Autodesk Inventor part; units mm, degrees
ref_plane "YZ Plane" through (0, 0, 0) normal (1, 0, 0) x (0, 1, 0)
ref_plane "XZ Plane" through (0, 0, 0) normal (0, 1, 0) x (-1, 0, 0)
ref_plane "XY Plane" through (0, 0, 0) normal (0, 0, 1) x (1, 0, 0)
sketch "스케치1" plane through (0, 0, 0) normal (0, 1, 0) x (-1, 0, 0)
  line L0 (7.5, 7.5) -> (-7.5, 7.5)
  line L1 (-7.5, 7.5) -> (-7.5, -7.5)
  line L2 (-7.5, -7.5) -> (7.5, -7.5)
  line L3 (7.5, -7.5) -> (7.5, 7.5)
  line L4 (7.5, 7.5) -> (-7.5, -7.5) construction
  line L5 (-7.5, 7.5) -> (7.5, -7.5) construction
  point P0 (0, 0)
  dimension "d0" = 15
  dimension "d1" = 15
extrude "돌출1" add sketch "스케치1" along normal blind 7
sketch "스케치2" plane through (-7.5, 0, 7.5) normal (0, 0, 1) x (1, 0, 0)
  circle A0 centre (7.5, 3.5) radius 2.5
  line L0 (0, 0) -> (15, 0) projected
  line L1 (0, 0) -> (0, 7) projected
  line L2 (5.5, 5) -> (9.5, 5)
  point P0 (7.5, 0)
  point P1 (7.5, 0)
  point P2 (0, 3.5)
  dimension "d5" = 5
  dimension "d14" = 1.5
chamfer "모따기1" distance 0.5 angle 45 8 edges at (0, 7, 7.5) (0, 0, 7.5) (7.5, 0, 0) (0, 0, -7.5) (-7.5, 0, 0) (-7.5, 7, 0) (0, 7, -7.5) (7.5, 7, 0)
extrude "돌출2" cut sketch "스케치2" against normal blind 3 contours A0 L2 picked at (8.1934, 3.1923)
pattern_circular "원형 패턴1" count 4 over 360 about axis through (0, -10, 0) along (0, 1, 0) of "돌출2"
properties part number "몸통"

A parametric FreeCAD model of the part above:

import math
import FreeCAD as App
import Part
import Sketcher
Q = App.Units.Quantity


def edges_at(feature, points):
    """Names of the edges that pass closest to the given points."""
    edges = feature.Shape.Edges
    near = lambda p: min(range(len(edges)), key=lambda i: edges[i].distToShape(Part.Vertex(*p))[0])
    return sorted({f"Edge{near(p) + 1}" for p in points})


def add_polygon(sketch, points):
    """Adds a closed chain of lines whose ends are joined by coincident constraints."""
    first, n = sketch.GeometryCount, len(points)
    for a, b in zip(points, points[1:] + points[:1]):
        sketch.addGeometry(Part.LineSegment(App.Vector(*a, 0), App.Vector(*b, 0)), False)
    for i in range(n):
        sketch.addConstraint(Sketcher.Constraint("Coincident", first + i, 2, first + (i + 1) % n, 1))

doc = App.newDocument("Part")
body = doc.addObject("PartDesign::Body", "Body")

# Sketch on XZ plane
sketch1 = body.newObject("Sketcher::SketchObject", "Sketch")
sketch1.AttachmentSupport = (doc.getObject("XZ_Plane"), [""])
sketch1.MapMode = "FlatFace"
add_polygon(sketch1, [(-8, -8), (-8, 8), (8, 8), (8, -8)])  # lines 0-3
sketch1.addConstraint([
    Sketcher.Constraint("Vertical", 0),
    Sketcher.Constraint("Horizontal", 1),
    Sketcher.Constraint("Vertical", 2),
    Sketcher.Constraint("Horizontal", 3),
    Sketcher.Constraint("Symmetric", 0, 2, 2, 2, -1, 1),
    Sketcher.Constraint("Equal", 3, 0),
    Sketcher.Constraint("DistanceX", 1, 1, 1, 2, Q("15 mm")),
])
pad1 = body.newObject("PartDesign::Pad", "Pad")
pad1.Profile = sketch1
pad1.Length = 7
pad1.Reversed = True
doc.recompute()

chamfer = body.newObject("PartDesign::Chamfer", "Chamfer")
chamfer.Base = (pad1, edges_at(pad1, [
    (0, 7, 7.5),
    (0, 0, 7.5),
    (7.5, 0, 0),
    (0, 0, -7.5),
    (-7.5, 0, 0),
    (-7.5, 7, 0),
    (0, 7, -7.5),
    (7.5, 7, 0),
]))
chamfer.Size = 0.5

# Sketch on XY plane
sketch2 = body.newObject("Sketcher::SketchObject", "Sketch001")
sketch2.AttachmentSupport = (doc.getObject("XY_Plane"), [""])
sketch2.MapMode = "FlatFace"
sketch2.AttachmentOffset = App.Placement(App.Vector(0, 0, 7.5), App.Rotation())
sketch2.addGeometry([
    Part.ArcOfCircle(Part.Circle(App.Vector(0, 3.5, 0), App.Vector(0, 0, 1), 2.5), math.radians(143), math.radians(397)),
    Part.LineSegment(App.Vector(2, 5, 0), App.Vector(-2, 5, 0)),
], False)
sketch2.addConstraint([
    Sketcher.Constraint("Coincident", 0, 1, 1, 2),
    Sketcher.Constraint("Coincident", 1, 1, 0, 2),
    Sketcher.Constraint("Horizontal", 1),
    Sketcher.Constraint("PointOnObject", 0, 3, -2),
    Sketcher.Constraint("Radius", 0, Q("2.5 mm")),
    Sketcher.Constraint("DistanceY", -1, 1, 0, 1, Q("5 mm")),
    Sketcher.Constraint("DistanceY", 0, 3, 0, 1, Q("1.5 mm")),
])
pocket1 = body.newObject("PartDesign::Pocket", "Pocket")
pocket1.Profile = sketch2
pocket1.Length = 3
doc.recompute()

polarpattern = body.newObject("PartDesign::PolarPattern", "PolarPattern")
polarpattern.Originals = [pocket1]
polarpattern.Axis = (doc.getObject("Y_Axis"), [""])
polarpattern.Angle = 360
polarpattern.Occurrences = 4
body.Tip = polarpattern

doc.recompute()
